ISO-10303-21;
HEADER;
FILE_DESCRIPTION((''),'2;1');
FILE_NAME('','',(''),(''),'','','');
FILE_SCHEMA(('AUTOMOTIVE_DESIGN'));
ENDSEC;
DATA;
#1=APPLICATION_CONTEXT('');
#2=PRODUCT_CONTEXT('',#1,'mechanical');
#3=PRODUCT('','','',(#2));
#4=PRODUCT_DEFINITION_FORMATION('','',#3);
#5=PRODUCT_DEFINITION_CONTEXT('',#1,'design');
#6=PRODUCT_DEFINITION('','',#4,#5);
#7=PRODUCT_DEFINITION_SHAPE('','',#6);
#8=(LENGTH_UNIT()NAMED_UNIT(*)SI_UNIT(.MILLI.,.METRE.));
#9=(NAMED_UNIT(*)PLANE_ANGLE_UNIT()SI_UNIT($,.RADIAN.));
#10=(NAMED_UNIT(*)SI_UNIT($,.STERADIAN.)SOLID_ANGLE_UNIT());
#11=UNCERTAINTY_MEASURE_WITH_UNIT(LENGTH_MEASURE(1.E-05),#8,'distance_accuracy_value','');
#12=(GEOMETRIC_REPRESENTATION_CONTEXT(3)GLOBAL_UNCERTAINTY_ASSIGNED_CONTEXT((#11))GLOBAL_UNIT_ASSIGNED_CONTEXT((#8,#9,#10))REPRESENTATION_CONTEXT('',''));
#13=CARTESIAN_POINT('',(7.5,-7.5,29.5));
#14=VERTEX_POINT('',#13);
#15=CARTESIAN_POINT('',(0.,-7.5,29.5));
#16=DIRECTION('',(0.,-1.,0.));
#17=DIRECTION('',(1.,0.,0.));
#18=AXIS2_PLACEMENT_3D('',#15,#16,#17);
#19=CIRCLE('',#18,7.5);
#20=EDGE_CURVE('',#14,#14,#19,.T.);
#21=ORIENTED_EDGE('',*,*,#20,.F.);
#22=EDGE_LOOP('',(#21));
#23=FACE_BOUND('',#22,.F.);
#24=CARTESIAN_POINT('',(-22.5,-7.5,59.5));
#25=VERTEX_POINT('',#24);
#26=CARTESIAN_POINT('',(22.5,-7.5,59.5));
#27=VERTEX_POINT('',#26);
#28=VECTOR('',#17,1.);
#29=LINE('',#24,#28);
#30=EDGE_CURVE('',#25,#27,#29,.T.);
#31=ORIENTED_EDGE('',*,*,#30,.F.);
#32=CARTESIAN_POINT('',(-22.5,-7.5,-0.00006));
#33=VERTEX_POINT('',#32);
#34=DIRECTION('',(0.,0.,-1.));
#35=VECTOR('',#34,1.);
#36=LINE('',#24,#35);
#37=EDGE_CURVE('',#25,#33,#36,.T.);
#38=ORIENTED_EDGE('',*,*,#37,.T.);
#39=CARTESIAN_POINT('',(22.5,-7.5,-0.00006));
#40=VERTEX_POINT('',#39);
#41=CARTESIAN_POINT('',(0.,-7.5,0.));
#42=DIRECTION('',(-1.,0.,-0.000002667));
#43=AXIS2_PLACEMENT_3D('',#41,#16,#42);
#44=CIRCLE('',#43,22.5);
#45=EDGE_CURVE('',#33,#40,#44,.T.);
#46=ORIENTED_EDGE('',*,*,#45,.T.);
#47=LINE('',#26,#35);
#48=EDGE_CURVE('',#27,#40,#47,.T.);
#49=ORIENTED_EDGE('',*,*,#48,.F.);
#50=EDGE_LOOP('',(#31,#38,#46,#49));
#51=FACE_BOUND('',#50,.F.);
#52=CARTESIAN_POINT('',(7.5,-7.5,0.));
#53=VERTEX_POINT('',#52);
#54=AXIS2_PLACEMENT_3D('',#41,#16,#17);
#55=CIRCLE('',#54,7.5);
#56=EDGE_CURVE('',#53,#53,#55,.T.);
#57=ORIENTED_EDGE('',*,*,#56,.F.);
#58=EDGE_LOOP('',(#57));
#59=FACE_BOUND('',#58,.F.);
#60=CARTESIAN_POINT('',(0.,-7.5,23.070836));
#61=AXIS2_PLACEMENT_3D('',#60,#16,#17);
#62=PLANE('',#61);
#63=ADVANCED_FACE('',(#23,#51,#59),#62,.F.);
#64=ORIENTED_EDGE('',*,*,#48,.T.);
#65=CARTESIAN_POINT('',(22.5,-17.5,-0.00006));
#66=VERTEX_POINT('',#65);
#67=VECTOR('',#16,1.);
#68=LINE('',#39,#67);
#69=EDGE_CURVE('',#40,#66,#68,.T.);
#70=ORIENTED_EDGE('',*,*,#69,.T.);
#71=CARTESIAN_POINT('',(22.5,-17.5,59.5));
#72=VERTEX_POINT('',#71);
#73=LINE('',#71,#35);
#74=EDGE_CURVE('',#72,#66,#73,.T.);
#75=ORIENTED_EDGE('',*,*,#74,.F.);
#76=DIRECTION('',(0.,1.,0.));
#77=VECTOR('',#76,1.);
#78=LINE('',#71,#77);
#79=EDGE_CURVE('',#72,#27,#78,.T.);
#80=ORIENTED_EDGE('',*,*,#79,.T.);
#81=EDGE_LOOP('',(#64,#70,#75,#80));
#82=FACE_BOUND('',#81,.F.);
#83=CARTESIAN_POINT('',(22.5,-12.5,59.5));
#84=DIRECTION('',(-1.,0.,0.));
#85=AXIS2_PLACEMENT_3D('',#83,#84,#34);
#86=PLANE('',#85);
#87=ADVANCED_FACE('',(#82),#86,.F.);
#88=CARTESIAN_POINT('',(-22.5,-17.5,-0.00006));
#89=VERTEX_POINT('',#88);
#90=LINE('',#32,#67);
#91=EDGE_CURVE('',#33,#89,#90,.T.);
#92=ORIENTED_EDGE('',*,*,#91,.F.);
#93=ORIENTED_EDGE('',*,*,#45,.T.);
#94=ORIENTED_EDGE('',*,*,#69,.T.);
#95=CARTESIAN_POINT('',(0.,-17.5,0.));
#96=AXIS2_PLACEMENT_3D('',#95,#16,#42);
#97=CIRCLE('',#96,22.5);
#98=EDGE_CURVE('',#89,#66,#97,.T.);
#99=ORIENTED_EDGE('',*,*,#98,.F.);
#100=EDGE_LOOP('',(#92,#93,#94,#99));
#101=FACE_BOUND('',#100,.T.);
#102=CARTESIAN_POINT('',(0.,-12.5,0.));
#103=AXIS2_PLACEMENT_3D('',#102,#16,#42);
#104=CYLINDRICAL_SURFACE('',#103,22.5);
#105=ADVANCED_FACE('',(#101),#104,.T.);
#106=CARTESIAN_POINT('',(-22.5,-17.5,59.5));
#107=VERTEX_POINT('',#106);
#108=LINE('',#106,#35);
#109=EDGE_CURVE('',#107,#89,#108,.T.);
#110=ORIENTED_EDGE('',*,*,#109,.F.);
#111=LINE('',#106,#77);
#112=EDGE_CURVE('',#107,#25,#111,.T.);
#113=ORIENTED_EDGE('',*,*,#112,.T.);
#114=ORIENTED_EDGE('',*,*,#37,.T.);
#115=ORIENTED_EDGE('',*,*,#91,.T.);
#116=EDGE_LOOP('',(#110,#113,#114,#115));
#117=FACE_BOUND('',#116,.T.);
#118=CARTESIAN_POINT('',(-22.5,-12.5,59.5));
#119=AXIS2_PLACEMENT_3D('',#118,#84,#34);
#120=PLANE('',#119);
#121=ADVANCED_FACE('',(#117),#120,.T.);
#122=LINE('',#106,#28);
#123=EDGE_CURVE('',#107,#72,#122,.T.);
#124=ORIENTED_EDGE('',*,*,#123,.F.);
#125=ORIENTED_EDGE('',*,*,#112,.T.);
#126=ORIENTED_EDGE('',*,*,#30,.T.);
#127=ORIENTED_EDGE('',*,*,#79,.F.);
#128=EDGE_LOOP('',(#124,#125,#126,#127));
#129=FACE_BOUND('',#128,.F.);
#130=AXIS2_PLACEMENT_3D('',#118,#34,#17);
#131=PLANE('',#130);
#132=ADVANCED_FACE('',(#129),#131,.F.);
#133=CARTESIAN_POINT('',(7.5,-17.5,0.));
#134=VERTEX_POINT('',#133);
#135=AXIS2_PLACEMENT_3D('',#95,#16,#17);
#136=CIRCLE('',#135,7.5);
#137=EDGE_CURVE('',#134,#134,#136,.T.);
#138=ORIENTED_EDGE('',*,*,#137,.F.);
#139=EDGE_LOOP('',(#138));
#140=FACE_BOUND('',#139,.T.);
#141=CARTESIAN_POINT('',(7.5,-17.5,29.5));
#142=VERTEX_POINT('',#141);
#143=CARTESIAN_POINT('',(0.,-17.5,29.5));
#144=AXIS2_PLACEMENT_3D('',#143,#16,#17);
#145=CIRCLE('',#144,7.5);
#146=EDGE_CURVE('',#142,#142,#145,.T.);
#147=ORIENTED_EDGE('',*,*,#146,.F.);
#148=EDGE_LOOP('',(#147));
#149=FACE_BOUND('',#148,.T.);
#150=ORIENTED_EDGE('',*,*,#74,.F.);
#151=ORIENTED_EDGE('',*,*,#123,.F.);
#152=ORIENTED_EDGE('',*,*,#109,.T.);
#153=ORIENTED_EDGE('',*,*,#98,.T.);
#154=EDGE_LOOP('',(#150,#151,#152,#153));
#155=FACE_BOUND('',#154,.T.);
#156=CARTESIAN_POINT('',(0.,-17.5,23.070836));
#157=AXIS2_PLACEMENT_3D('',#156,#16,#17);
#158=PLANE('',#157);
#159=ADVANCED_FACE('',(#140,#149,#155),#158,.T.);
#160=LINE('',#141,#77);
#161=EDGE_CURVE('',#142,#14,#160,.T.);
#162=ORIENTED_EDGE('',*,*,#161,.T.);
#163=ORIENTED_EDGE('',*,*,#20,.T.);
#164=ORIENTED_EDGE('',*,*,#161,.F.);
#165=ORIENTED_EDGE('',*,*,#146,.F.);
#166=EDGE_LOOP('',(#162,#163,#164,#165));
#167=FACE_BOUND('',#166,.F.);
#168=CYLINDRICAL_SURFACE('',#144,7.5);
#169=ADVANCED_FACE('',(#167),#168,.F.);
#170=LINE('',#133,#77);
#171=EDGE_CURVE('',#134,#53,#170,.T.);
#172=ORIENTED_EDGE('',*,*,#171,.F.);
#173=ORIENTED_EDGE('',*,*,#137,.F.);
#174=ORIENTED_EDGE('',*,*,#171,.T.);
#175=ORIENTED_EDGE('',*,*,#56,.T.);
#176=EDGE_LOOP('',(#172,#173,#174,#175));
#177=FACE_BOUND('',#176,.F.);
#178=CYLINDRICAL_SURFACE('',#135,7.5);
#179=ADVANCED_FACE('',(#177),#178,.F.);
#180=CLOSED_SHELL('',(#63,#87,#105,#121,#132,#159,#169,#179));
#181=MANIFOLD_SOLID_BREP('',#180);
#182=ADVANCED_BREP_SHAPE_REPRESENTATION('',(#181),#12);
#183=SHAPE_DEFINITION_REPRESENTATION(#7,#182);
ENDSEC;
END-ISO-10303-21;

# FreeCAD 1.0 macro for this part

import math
import FreeCAD as App
import Part
import Sketcher

V = App.Vector
Q = App.Units.Quantity

doc = App.newDocument("Part")
body = doc.addObject("PartDesign::Body", "Body")

# Sketch on XZ plane
sketch1 = doc.addObject("Sketcher::SketchObject", "Sketch")
body.addObject(sketch1)
sketch1.AttachmentSupport = (doc.XZ_Plane, [""])
sketch1.MapMode = "FlatFace"
sketch1.AttachmentOffset = App.Placement(V(0, 0, 12.5), App.Rotation())
sketch1.addGeometry(Part.LineSegment(V(-22.5, 59.5, 0), V(-22.5, -0.00006, 0)), False)
sketch1.addGeometry(Part.ArcOfCircle(Part.Circle(V(0, 0, 0), V(0, 0, 1), 22.5), math.radians(-179.999847), math.radians(-0.000153)), False)
sketch1.addGeometry(Part.LineSegment(V(22.5, -0.00006, 0), V(22.5, 59.5, 0)), False)
sketch1.addGeometry(Part.LineSegment(V(22.5, 59.5, 0), V(-22.5, 59.5, 0)), False)
sketch1.addConstraint(Sketcher.Constraint("Coincident", 0, 2, 1, 1))
sketch1.addConstraint(Sketcher.Constraint("Coincident", 1, 2, 2, 1))
sketch1.addConstraint(Sketcher.Constraint("Coincident", 2, 2, 3, 1))
sketch1.addConstraint(Sketcher.Constraint("Coincident", 3, 2, 0, 1))
sketch1.addConstraint(Sketcher.Constraint("Vertical", 0))
sketch1.addConstraint(Sketcher.Constraint("Vertical", 2))
sketch1.addConstraint(Sketcher.Constraint("Horizontal", 3))
sketch1.addConstraint(Sketcher.Constraint("Coincident", 1, 3, -1, 1))
sketch1.addConstraint(Sketcher.Constraint("Horizontal", 0, 2, 1, 2))
sketch1.addConstraint(Sketcher.Constraint("Radius", 1, Q("22.5 mm")))
sketch1.addConstraint(Sketcher.Constraint("DistanceY", -1, 1, 2, 2, Q("59.5 mm")))
sketch1.addConstraint(Sketcher.Constraint("DistanceY", 0, 2, 0, 1, Q("59.50006 mm")))
pad1 = doc.addObject("PartDesign::Pad", "Pad")
body.addObject(pad1)
pad1.Profile = sketch1
pad1.Length = 10
pad1.Midplane = True

# Sketch on XZ plane
sketch2 = doc.addObject("Sketcher::SketchObject", "Sketch001")
body.addObject(sketch2)
sketch2.AttachmentSupport = (doc.XZ_Plane, [""])
sketch2.MapMode = "FlatFace"
sketch2.AttachmentOffset = App.Placement(V(0, 0, 17.5), App.Rotation())
sketch2.addGeometry(Part.Circle(V(0, 0, 0), V(0, 0, 1), 7.5), False)
sketch2.addGeometry(Part.Circle(V(0, 29.5, 0), V(0, 0, 1), 7.5), False)
sketch2.addConstraint(Sketcher.Constraint("Coincident", 0, 3, -1, 1))
sketch2.addConstraint(Sketcher.Constraint("Equal", 0, 1))
sketch2.addConstraint(Sketcher.Constraint("PointOnObject", 1, 3, -2))
sketch2.addConstraint(Sketcher.Constraint("Diameter", 0, Q("15 mm")))
sketch2.addConstraint(Sketcher.Constraint("DistanceY", -1, 1, 1, 3, Q("29.5 mm")))
pocket1 = doc.addObject("PartDesign::Pocket", "Pocket")
body.addObject(pocket1)
pocket1.Profile = sketch2
pocket1.Type = "ThroughAll"

doc.recompute()
